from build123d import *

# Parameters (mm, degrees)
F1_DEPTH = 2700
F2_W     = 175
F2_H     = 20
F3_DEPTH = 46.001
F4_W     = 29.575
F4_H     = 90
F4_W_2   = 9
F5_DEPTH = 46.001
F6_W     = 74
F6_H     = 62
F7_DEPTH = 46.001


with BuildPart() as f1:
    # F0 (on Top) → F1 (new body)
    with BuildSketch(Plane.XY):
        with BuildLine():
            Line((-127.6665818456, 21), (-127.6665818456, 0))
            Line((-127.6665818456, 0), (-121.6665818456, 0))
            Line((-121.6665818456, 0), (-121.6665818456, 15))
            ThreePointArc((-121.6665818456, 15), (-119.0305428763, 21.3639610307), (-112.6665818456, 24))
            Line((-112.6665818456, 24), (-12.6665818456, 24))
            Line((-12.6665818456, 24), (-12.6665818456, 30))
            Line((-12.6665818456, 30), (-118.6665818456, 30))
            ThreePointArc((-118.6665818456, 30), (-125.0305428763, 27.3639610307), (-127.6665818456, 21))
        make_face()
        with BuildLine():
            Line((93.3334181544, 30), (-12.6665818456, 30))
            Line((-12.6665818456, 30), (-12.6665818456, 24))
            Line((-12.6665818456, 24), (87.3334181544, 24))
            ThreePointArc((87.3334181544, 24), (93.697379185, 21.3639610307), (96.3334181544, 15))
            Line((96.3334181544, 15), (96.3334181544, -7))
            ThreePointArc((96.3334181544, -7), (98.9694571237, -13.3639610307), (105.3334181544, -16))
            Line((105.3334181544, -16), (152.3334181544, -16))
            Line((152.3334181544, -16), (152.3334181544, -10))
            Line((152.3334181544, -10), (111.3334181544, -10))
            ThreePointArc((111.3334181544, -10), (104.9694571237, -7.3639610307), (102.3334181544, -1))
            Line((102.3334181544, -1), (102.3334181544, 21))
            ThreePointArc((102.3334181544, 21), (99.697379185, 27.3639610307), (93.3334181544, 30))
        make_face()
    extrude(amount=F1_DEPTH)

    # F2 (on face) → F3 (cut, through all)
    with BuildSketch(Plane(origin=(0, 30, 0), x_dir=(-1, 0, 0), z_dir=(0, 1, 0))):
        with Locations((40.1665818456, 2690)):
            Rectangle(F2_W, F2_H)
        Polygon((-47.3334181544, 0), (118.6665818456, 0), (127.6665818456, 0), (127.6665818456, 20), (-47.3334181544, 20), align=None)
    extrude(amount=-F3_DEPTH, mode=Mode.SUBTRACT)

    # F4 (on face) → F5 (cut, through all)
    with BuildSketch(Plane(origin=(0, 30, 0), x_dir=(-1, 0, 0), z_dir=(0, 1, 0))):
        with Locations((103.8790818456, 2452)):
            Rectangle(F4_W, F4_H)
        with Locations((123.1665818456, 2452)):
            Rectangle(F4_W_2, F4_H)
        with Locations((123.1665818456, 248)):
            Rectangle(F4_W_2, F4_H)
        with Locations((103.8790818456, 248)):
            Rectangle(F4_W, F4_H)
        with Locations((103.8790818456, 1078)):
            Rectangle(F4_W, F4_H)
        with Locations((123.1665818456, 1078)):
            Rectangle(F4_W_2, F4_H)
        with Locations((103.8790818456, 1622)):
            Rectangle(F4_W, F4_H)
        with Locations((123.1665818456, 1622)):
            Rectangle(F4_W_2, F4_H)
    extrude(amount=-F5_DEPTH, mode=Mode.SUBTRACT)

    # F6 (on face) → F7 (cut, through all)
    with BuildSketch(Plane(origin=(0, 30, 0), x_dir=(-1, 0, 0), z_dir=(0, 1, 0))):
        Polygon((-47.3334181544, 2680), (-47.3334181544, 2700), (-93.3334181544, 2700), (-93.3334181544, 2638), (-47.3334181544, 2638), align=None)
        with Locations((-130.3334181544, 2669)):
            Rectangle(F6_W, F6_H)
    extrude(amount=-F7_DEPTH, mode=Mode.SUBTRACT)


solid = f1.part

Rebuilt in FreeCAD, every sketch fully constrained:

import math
import FreeCAD as App
import Part
import Sketcher
from FreeCAD import Vector
Q = App.Units.Quantity


def add_polygon(sketch, points):
    """Adds a closed chain of lines whose ends are joined by coincident constraints."""
    first, n = sketch.GeometryCount, len(points)
    for a, b in zip(points, points[1:] + points[:1]):
        sketch.addGeometry(Part.LineSegment(App.Vector(*a, 0), App.Vector(*b, 0)), False)
    for i in range(n):
        sketch.addConstraint(Sketcher.Constraint("Coincident", first + i, 2, first + (i + 1) % n, 1))

doc = App.newDocument("Part")
params = doc.addObject("Spreadsheet::Sheet", "Params")
for row, (alias, value) in enumerate([
    ("sketch1_radius", "9 mm"),
    ("sketch1_width", "6 mm"),
    ("sketch1_width2", "200 mm"),
    ("sketch1_width3", "47 mm"),
    ("sketch1_width4", "41 mm"),
    ("pad1_length", "2700 mm"),
    ("sketch2_width", "175 mm"),
    ("sketch2_height", "20 mm"),
    ("sketch3_height", "90 mm"),
    ("sketch4_width", "120 mm"),
    ("sketch4_height", "62 mm"),
], start=1):
    params.set(f"A{row}", alias)
    params.set(f"B{row}", "=" + value)
    params.setAlias(f"B{row}", alias)

body = doc.addObject("PartDesign::Body", "Body")

# Sketch on XY plane
sketch1 = doc.addObject("Sketcher::SketchObject", "Sketch")
body.addObject(sketch1)
sketch1.AttachmentSupport = (doc.XY_Plane, [""])
sketch1.MapMode = "FlatFace"
sketch1.addGeometry(Part.LineSegment(Vector(-127.666582, 21, 0), Vector(-127.666582, 0, 0)), False)
sketch1.addGeometry(Part.LineSegment(Vector(-127.666582, 0, 0), Vector(-121.666582, 0, 0)), False)
sketch1.addGeometry(Part.LineSegment(Vector(-121.666582, 0, 0), Vector(-121.666582, 15, 0)), False)
sketch1.addGeometry(Part.ArcOfCircle(Part.Circle(Vector(-112.666582, 15, 0), Vector(0, 0, 1), 9), math.radians(90), math.radians(180)), False)
sketch1.addGeometry(Part.LineSegment(Vector(-112.666582, 24, 0), Vector(87.333418, 24, 0)), False)
sketch1.addGeometry(Part.ArcOfCircle(Part.Circle(Vector(87.333418, 15, 0), Vector(0, 0, 1), 9), math.radians(0), math.radians(90)), False)
sketch1.addGeometry(Part.LineSegment(Vector(96.333418, 15, 0), Vector(96.333418, -7, 0)), False)
sketch1.addGeometry(Part.ArcOfCircle(Part.Circle(Vector(105.333418, -7, 0), Vector(0, 0, 1), 9), math.radians(180), math.radians(270)), False)
sketch1.addGeometry(Part.LineSegment(Vector(105.333418, -16, 0), Vector(152.333418, -16, 0)), False)
sketch1.addGeometry(Part.LineSegment(Vector(152.333418, -16, 0), Vector(152.333418, -10, 0)), False)
sketch1.addGeometry(Part.LineSegment(Vector(152.333418, -10, 0), Vector(111.333418, -10, 0)), False)
sketch1.addGeometry(Part.ArcOfCircle(Part.Circle(Vector(111.333418, -1, 0), Vector(0, 0, 1), 9), math.radians(180), math.radians(270)), False)
sketch1.addGeometry(Part.LineSegment(Vector(102.333418, -1, 0), Vector(102.333418, 21, 0)), False)
sketch1.addGeometry(Part.ArcOfCircle(Part.Circle(Vector(93.333418, 21, 0), Vector(0, 0, 1), 9), math.radians(0), math.radians(90)), False)
sketch1.addGeometry(Part.LineSegment(Vector(93.333418, 30, 0), Vector(-118.666582, 30, 0)), False)
sketch1.addGeometry(Part.ArcOfCircle(Part.Circle(Vector(-118.666582, 21, 0), Vector(0, 0, 1), 9), math.radians(90), math.radians(180)), False)
sketch1.addConstraint(Sketcher.Constraint("Coincident", 0, 2, 1, 1))
sketch1.addConstraint(Sketcher.Constraint("Coincident", 1, 2, 2, 1))
sketch1.addConstraint(Sketcher.Constraint("Tangent", 2, 2, 3, 2))
sketch1.addConstraint(Sketcher.Constraint("Tangent", 3, 1, 4, 1))
sketch1.addConstraint(Sketcher.Constraint("Tangent", 4, 2, 5, 2))
sketch1.addConstraint(Sketcher.Constraint("Tangent", 5, 1, 6, 1))
sketch1.addConstraint(Sketcher.Constraint("Tangent", 6, 2, 7, 1))
sketch1.addConstraint(Sketcher.Constraint("Tangent", 7, 2, 8, 1))
sketch1.addConstraint(Sketcher.Constraint("Coincident", 8, 2, 9, 1))
sketch1.addConstraint(Sketcher.Constraint("Coincident", 9, 2, 10, 1))
sketch1.addConstraint(Sketcher.Constraint("Tangent", 10, 2, 11, 2))
sketch1.addConstraint(Sketcher.Constraint("Tangent", 11, 1, 12, 1))
sketch1.addConstraint(Sketcher.Constraint("Tangent", 12, 2, 13, 1))
sketch1.addConstraint(Sketcher.Constraint("Tangent", 13, 2, 14, 1))
sketch1.addConstraint(Sketcher.Constraint("Tangent", 14, 2, 15, 1))
sketch1.addConstraint(Sketcher.Constraint("Tangent", 15, 2, 0, 1))
sketch1.addConstraint(Sketcher.Constraint("Vertical", 0))
sketch1.addConstraint(Sketcher.Constraint("Horizontal", 1))
sketch1.addConstraint(Sketcher.Constraint("Vertical", 2))
sketch1.addConstraint(Sketcher.Constraint("Horizontal", 4))
sketch1.addConstraint(Sketcher.Constraint("Vertical", 6))
sketch1.addConstraint(Sketcher.Constraint("Horizontal", 8))
sketch1.addConstraint(Sketcher.Constraint("Vertical", 9))
sketch1.addConstraint(Sketcher.Constraint("Horizontal", 10))
sketch1.addConstraint(Sketcher.Constraint("Vertical", 12))
sketch1.addConstraint(Sketcher.Constraint("Horizontal", 14))
sketch1.addConstraint(Sketcher.Constraint("Equal", 3, 5))
sketch1.addConstraint(Sketcher.Constraint("Equal", 5, 7))
sketch1.addConstraint(Sketcher.Constraint("Equal", 7, 11))
sketch1.addConstraint(Sketcher.Constraint("Equal", 11, 13))
sketch1.addConstraint(Sketcher.Constraint("Equal", 13, 15))
sketch1.addConstraint(Sketcher.Constraint("PointOnObject", 0, 2, -1))
sketch1.addConstraint(Sketcher.Constraint("Equal", 1, 9))
sketch1.addConstraint(Sketcher.Constraint("Equal", 6, 12))
sketch1.addConstraint(Sketcher.Constraint("Radius", 3, Q("9 mm")))
sketch1.addConstraint(Sketcher.Constraint("DistanceX", 1, 1, 1, 2, Q("6 mm")))
sketch1.addConstraint(Sketcher.Constraint("DistanceX", 4, 1, 4, 2, Q("200 mm")))
sketch1.addConstraint(Sketcher.Constraint("DistanceX", 8, 1, 8, 2, Q("47 mm")))
sketch1.addConstraint(Sketcher.Constraint("DistanceX", 10, 2, 10, 1, Q("41 mm")))
sketch1.addConstraint(Sketcher.Constraint("DistanceY", 0, 2, 0, 1, Q("21 mm")))
sketch1.addConstraint(Sketcher.Constraint("DistanceY", 6, 2, 6, 1, Q("22 mm")))
sketch1.addConstraint(Sketcher.Constraint("DistanceX", 3, 3, -1, 1, Q("112.666582 mm")))
sketch1.setExpression("Constraints[34]", "Params.sketch1_radius")
sketch1.setExpression("Constraints[35]", "Params.sketch1_width")
sketch1.setExpression("Constraints[36]", "Params.sketch1_width2")
sketch1.setExpression("Constraints[37]", "Params.sketch1_width3")
sketch1.setExpression("Constraints[38]", "Params.sketch1_width4")
pad1 = doc.addObject("PartDesign::Pad", "Pad")
body.addObject(pad1)
pad1.Profile = sketch1
pad1.setExpression("Length", "Params.pad1_length")

# Sketch on XZ plane
sketch2 = doc.addObject("Sketcher::SketchObject", "Sketch001")
body.addObject(sketch2)
sketch2.AttachmentSupport = (doc.XZ_Plane, [""])
sketch2.MapMode = "FlatFace"
sketch2.AttachmentOffset = App.Placement(Vector(0, 0, -30), App.Rotation())
add_polygon(sketch2, [(47.333418, 2700), (47.333418, 2680), (-127.666582, 2680), (-127.666582, 2700)])  # lines 0-3
add_polygon(sketch2, [(47.333418, 0), (-127.666582, 0), (-127.666582, 20), (47.333418, 20)])  # lines 4-7
sketch2.addConstraint(Sketcher.Constraint("Vertical", 0))
sketch2.addConstraint(Sketcher.Constraint("Horizontal", 1))
sketch2.addConstraint(Sketcher.Constraint("Vertical", 2))
sketch2.addConstraint(Sketcher.Constraint("Horizontal", 3))
sketch2.addConstraint(Sketcher.Constraint("Horizontal", 4))
sketch2.addConstraint(Sketcher.Constraint("Vertical", 5))
sketch2.addConstraint(Sketcher.Constraint("Horizontal", 6))
sketch2.addConstraint(Sketcher.Constraint("Vertical", 7))
sketch2.addConstraint(Sketcher.Constraint("PointOnObject", 4, 2, -1))
sketch2.addConstraint(Sketcher.Constraint("Vertical", 2, 2, 4, 2))
sketch2.addConstraint(Sketcher.Constraint("Vertical", 3, 2, 6, 2))
sketch2.addConstraint(Sketcher.Constraint("Equal", 2, 5))
sketch2.addConstraint(Sketcher.Constraint("DistanceX", 1, 2, 1, 1, Q("175 mm")))
sketch2.addConstraint(Sketcher.Constraint("DistanceY", 0, 2, 0, 1, Q("20 mm")))
sketch2.addConstraint(Sketcher.Constraint("DistanceY", -1, 1, 0, 2, Q("2680 mm")))
sketch2.addConstraint(Sketcher.Constraint("DistanceX", -1, 1, 0, 2, Q("47.333418 mm")))
sketch2.setExpression("Constraints[20]", "Params.sketch2_width")
sketch2.setExpression("Constraints[21]", "Params.sketch2_height")
pocket1 = doc.addObject("PartDesign::Pocket", "Pocket")
body.addObject(pocket1)
pocket1.Profile = sketch2
pocket1.Type = "ThroughAll"
pocket1.Reversed = True

# Sketch on XZ plane
sketch3 = doc.addObject("Sketcher::SketchObject", "Sketch002")
body.addObject(sketch3)
sketch3.AttachmentSupport = (doc.XZ_Plane, [""])
sketch3.MapMode = "FlatFace"
sketch3.AttachmentOffset = App.Placement(Vector(0, 0, -30), App.Rotation())
add_polygon(sketch3, [(-89.091582, 2497), (-89.091582, 2407), (-127.666582, 2407), (-127.666582, 2497)])  # lines 0-3
add_polygon(sketch3, [(-127.666582, 203), (-127.666582, 293), (-89.091582, 293), (-89.091582, 203)])  # lines 4-7
add_polygon(sketch3, [(-89.091582, 1123), (-89.091582, 1033), (-127.666582, 1033), (-127.666582, 1123)])  # lines 8-11
add_polygon(sketch3, [(-89.091582, 1667), (-89.091582, 1577), (-127.666582, 1577), (-127.666582, 1667)])  # lines 12-15
sketch3.addConstraint(Sketcher.Constraint("Vertical", 0))
sketch3.addConstraint(Sketcher.Constraint("Horizontal", 1))
sketch3.addConstraint(Sketcher.Constraint("Vertical", 2))
sketch3.addConstraint(Sketcher.Constraint("Horizontal", 3))
sketch3.addConstraint(Sketcher.Constraint("Vertical", 4))
sketch3.addConstraint(Sketcher.Constraint("Horizontal", 5))
sketch3.addConstraint(Sketcher.Constraint("Vertical", 6))
sketch3.addConstraint(Sketcher.Constraint("Horizontal", 7))
sketch3.addConstraint(Sketcher.Constraint("Vertical", 8))
sketch3.addConstraint(Sketcher.Constraint("Horizontal", 9))
sketch3.addConstraint(Sketcher.Constraint("Vertical", 10))
sketch3.addConstraint(Sketcher.Constraint("Horizontal", 11))
sketch3.addConstraint(Sketcher.Constraint("Vertical", 12))
sketch3.addConstraint(Sketcher.Constraint("Horizontal", 13))
sketch3.addConstraint(Sketcher.Constraint("Vertical", 14))
sketch3.addConstraint(Sketcher.Constraint("Horizontal", 15))
sketch3.addConstraint(Sketcher.Constraint("Vertical", 2, 2, 4, 2))
sketch3.addConstraint(Sketcher.Constraint("Vertical", 3, 2, 5, 2))
sketch3.addConstraint(Sketcher.Constraint("Vertical", 6, 2, 8, 2))
sketch3.addConstraint(Sketcher.Constraint("Vertical", 7, 2, 9, 2))
sketch3.addConstraint(Sketcher.Constraint("Vertical", 11, 2, 12, 2))
sketch3.addConstraint(Sketcher.Constraint("Vertical", 10, 2, 13, 2))
sketch3.addConstraint(Sketcher.Constraint("Equal", 2, 4))
sketch3.addConstraint(Sketcher.Constraint("Equal", 6, 8))
sketch3.addConstraint(Sketcher.Constraint("Equal", 10, 12))
sketch3.addConstraint(Sketcher.Constraint("DistanceY", 0, 2, 0, 1, Q("90 mm")))
sketch3.addConstraint(Sketcher.Constraint("DistanceY", -1, 1, 0, 2, Q("2407 mm")))
sketch3.addConstraint(Sketcher.Constraint("DistanceY", -1, 1, 4, 2, Q("293 mm")))
sketch3.addConstraint(Sketcher.Constraint("DistanceY", -1, 1, 8, 2, Q("1033 mm")))
sketch3.addConstraint(Sketcher.Constraint("DistanceY", -1, 1, 12, 2, Q("1577 mm")))
sketch3.addConstraint(Sketcher.Constraint("DistanceX", 1, 2, 1, 1, Q("38.575 mm")))
sketch3.addConstraint(Sketcher.Constraint("DistanceX", 0, 2, -1, 1, Q("89.091582 mm")))
sketch3.setExpression("Constraints[41]", "Params.sketch3_height")
pocket2 = doc.addObject("PartDesign::Pocket", "Pocket001")
body.addObject(pocket2)
pocket2.Profile = sketch3
pocket2.Type = "ThroughAll"
pocket2.Reversed = True

# Sketch on XZ plane
sketch4 = doc.addObject("Sketcher::SketchObject", "Sketch003")
body.addObject(sketch4)
sketch4.AttachmentSupport = (doc.XZ_Plane, [""])
sketch4.MapMode = "FlatFace"
sketch4.AttachmentOffset = App.Placement(Vector(0, 0, -30), App.Rotation())
add_polygon(sketch4, [(47.333418, 2700), (167.333418, 2700), (167.333418, 2638), (47.333418, 2638)])  # lines 0-3
sketch4.addConstraint(Sketcher.Constraint("Horizontal", 0))
sketch4.addConstraint(Sketcher.Constraint("Vertical", 1))
sketch4.addConstraint(Sketcher.Constraint("Horizontal", 2))
sketch4.addConstraint(Sketcher.Constraint("Vertical", 3))
sketch4.addConstraint(Sketcher.Constraint("DistanceX", 0, 1, 0, 2, Q("120 mm")))
sketch4.addConstraint(Sketcher.Constraint("DistanceY", 1, 2, 1, 1, Q("62 mm")))
sketch4.addConstraint(Sketcher.Constraint("DistanceY", -1, 1, 0, 2, Q("2700 mm")))
sketch4.addConstraint(Sketcher.Constraint("DistanceX", -1, 1, 0, 2, Q("167.333418 mm")))
sketch4.setExpression("Constraints[8]", "Params.sketch4_width")
sketch4.setExpression("Constraints[9]", "Params.sketch4_height")
pocket3 = doc.addObject("PartDesign::Pocket", "Pocket002")
body.addObject(pocket3)
pocket3.Profile = sketch4
pocket3.Type = "ThroughAll"
pocket3.Reversed = True

doc.recompute()
